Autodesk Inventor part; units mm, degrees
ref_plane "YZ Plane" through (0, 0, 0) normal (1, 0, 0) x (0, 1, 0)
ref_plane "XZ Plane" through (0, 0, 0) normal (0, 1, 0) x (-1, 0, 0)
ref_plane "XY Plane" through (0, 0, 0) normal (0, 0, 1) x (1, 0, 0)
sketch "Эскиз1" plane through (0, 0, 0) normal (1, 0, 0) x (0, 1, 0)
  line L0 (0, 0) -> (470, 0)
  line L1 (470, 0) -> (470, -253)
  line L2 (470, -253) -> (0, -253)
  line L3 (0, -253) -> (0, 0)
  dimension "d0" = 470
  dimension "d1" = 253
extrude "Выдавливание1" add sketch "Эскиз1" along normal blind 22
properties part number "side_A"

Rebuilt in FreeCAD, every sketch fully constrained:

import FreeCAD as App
import Part
import Sketcher
from FreeCAD import Vector
Q = App.Units.Quantity


def add_polygon(sketch, points):
    """Adds a closed chain of lines whose ends are joined by coincident constraints."""
    first, n = sketch.GeometryCount, len(points)
    for a, b in zip(points, points[1:] + points[:1]):
        sketch.addGeometry(Part.LineSegment(App.Vector(*a, 0), App.Vector(*b, 0)), False)
    for i in range(n):
        sketch.addConstraint(Sketcher.Constraint("Coincident", first + i, 2, first + (i + 1) % n, 1))

doc = App.newDocument("Part")
params = doc.addObject("Spreadsheet::Sheet", "Params")
for row, (alias, value) in enumerate([
    ("sketch1_width", "470 mm"),
    ("sketch1_height", "253 mm"),
    ("pad1_length", "22 mm"),
], start=1):
    params.set(f"A{row}", alias)
    params.set(f"B{row}", "=" + value)
    params.setAlias(f"B{row}", alias)

body = doc.addObject("PartDesign::Body", "Body")

# Sketch on YZ plane
sketch1 = body.newObject("Sketcher::SketchObject", "Sketch")
sketch1.AttachmentSupport = (doc.getObject("YZ_Plane"), [""])
sketch1.MapMode = "FlatFace"
add_polygon(sketch1, [(470, 0), (0, 0), (0, -253), (470, -253)])  # lines 0-3
sketch1.addConstraint(Sketcher.Constraint("Horizontal", 0))
sketch1.addConstraint(Sketcher.Constraint("Vertical", 1))
sketch1.addConstraint(Sketcher.Constraint("Horizontal", 2))
sketch1.addConstraint(Sketcher.Constraint("Vertical", 3))
sketch1.addConstraint(Sketcher.Constraint("Coincident", 0, 2, -1, 1))
sketch1.addConstraint(Sketcher.Constraint("DistanceX", 0, 2, 0, 1, Q("470 mm")))
sketch1.addConstraint(Sketcher.Constraint("DistanceY", 1, 2, 1, 1, Q("253 mm")))
sketch1.setExpression("Constraints[9]", "Params.sketch1_width")
sketch1.setExpression("Constraints[10]", "Params.sketch1_height")
pad1 = body.newObject("PartDesign::Pad", "Pad")
pad1.Profile = sketch1
pad1.setExpression("Length", "Params.pad1_length")

doc.recompute()
